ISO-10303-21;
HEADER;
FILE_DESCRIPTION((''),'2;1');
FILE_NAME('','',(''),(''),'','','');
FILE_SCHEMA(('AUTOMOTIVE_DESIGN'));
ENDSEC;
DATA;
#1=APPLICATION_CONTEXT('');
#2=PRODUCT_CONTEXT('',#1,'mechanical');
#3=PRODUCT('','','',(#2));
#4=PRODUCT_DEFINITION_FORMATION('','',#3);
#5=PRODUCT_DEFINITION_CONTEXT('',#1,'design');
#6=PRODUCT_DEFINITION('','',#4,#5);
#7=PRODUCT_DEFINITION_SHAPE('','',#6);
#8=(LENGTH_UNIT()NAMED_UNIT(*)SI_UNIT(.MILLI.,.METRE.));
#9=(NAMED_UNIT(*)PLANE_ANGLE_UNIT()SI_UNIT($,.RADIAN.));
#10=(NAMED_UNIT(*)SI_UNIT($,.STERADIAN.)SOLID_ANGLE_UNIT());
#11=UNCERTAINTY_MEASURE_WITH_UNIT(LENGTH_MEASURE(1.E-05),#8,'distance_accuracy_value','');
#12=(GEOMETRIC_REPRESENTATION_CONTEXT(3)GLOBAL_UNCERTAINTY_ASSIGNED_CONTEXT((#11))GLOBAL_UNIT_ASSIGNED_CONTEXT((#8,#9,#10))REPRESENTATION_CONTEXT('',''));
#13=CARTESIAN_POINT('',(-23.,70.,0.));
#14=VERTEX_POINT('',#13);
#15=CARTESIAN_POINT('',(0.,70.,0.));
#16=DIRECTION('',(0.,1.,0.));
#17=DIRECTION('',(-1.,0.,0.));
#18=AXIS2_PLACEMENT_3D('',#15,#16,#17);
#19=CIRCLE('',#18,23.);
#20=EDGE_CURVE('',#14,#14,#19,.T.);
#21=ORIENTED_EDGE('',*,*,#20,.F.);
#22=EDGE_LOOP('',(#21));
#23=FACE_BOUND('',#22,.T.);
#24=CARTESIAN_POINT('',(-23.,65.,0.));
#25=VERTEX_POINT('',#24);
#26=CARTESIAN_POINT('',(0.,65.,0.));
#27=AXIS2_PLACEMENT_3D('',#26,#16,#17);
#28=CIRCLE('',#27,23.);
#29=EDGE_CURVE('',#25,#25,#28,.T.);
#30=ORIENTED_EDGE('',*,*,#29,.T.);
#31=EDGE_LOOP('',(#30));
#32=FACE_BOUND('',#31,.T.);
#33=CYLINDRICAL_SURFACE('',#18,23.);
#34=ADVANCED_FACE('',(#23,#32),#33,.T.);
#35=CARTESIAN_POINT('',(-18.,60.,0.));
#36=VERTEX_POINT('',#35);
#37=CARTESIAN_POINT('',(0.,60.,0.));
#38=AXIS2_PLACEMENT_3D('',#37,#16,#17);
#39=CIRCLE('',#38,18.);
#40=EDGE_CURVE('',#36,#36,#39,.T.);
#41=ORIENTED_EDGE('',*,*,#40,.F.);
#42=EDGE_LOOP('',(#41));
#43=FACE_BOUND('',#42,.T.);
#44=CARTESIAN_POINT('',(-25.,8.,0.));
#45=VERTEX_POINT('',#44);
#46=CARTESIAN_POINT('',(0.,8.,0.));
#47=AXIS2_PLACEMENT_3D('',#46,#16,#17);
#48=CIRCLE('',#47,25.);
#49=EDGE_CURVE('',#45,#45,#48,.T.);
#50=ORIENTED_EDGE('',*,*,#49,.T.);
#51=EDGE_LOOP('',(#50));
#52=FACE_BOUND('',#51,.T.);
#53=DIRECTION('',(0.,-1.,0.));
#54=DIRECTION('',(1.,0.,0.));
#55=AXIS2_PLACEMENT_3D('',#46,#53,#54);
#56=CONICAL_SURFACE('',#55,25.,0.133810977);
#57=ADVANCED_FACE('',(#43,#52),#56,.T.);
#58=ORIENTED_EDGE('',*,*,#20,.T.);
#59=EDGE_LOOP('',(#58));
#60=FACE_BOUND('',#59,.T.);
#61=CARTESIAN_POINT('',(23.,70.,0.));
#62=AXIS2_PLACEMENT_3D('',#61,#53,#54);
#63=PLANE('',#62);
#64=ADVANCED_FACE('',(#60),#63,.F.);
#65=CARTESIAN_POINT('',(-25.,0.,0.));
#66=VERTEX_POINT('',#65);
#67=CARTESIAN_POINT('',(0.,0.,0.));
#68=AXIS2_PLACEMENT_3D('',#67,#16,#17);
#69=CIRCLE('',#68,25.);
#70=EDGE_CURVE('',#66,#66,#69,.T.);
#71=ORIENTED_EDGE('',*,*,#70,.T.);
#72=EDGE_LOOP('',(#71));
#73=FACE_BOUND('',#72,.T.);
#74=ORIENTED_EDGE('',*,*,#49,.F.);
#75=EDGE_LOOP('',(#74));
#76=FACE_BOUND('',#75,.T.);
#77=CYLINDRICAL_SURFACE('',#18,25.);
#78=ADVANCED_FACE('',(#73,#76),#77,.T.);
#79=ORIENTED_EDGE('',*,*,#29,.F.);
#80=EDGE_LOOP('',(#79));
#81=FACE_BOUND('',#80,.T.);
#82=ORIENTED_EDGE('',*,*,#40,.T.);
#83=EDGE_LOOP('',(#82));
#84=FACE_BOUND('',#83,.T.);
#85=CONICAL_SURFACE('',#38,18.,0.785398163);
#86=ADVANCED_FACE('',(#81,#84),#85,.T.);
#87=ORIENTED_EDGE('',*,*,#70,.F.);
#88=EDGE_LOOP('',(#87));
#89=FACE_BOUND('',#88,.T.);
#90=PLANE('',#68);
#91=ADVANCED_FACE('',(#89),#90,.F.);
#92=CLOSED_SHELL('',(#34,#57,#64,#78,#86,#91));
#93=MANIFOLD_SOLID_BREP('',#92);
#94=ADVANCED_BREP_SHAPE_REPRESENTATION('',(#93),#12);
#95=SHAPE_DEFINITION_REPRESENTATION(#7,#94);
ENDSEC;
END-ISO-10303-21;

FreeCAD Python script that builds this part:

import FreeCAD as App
import Part
import Sketcher

V = App.Vector
Q = App.Units.Quantity


def add_polygon(sketch, points):
    """Adds a closed chain of lines whose ends are joined by coincident constraints."""
    first, n = sketch.GeometryCount, len(points)
    for a, b in zip(points, points[1:] + points[:1]):
        sketch.addGeometry(Part.LineSegment(App.Vector(*a, 0), App.Vector(*b, 0)), False)
    for i in range(n):
        sketch.addConstraint(Sketcher.Constraint("Coincident", first + i, 2, first + (i + 1) % n, 1))

doc = App.newDocument("Part")
body = doc.addObject("PartDesign::Body", "Body")

sketch1 = doc.addObject("Sketcher::SketchObject", "Sketch")
body.addObject(sketch1)
sketch1.AttachmentSupport = (doc.XY_Plane, [""])
sketch1.MapMode = "FlatFace"
add_polygon(sketch1, [(0, 0), (25, 0), (25, 8), (18, 60), (23, 65), (23, 70), (0, 70)])
sketch1.addConstraint(Sketcher.Constraint("Horizontal", 0))
sketch1.addConstraint(Sketcher.Constraint("Vertical", 1))
sketch1.addConstraint(Sketcher.Constraint("Vertical", 4))
sketch1.addConstraint(Sketcher.Constraint("Horizontal", 5))
sketch1.addConstraint(Sketcher.Constraint("Vertical", 6))
sketch1.addConstraint(Sketcher.Constraint("Coincident", 6, 2, -1, 1))
sketch1.addConstraint(Sketcher.Constraint("DistanceX", 0, 1, 0, 2, Q("25 mm")))
sketch1.addConstraint(Sketcher.Constraint("DistanceX", 5, 2, 5, 1, Q("23 mm")))
sketch1.addConstraint(Sketcher.Constraint("DistanceY", 1, 1, 1, 2, Q("8 mm")))
sketch1.addConstraint(Sketcher.Constraint("DistanceY", 4, 1, 4, 2, Q("5 mm")))
sketch1.addConstraint(Sketcher.Constraint("DistanceY", 6, 2, 6, 1, Q("70 mm")))
sketch1.addConstraint(Sketcher.Constraint("Angle", 3, Q("45 deg")))
sketch1.addConstraint(Sketcher.Constraint("DistanceX", -1, 1, 2, 2, Q("18 mm")))
revolution = doc.addObject("PartDesign::Revolution", "Revolution")
body.addObject(revolution)
revolution.Profile = sketch1
revolution.ReferenceAxis = (sketch1, ["V_Axis"])
revolution.Angle = 360

doc.recompute()
